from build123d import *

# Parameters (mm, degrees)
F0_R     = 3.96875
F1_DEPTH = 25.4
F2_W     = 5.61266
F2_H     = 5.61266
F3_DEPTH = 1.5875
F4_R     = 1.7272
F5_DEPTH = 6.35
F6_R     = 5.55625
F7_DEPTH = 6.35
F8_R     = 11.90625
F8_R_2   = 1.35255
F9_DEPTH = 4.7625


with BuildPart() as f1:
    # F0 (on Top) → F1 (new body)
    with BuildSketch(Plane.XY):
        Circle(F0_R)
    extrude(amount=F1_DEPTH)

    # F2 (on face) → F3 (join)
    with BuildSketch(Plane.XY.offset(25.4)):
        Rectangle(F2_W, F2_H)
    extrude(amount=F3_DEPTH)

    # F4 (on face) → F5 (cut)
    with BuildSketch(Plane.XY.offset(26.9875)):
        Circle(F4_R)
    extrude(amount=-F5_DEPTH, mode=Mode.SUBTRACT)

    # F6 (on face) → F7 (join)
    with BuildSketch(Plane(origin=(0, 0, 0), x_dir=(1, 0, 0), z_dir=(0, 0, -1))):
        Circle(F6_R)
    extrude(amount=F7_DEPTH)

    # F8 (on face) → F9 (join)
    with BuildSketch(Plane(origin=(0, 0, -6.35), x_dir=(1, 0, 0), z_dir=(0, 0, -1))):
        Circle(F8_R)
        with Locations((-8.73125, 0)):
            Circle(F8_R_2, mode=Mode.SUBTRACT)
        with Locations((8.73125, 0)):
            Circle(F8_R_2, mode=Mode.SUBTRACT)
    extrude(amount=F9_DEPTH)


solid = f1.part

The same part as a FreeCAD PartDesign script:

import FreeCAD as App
import Part
import Sketcher
from FreeCAD import Vector
Q = App.Units.Quantity

doc = App.newDocument("Part")
body = doc.addObject("PartDesign::Body", "Body")

# Sketch on XY plane
sketch1 = body.newObject("Sketcher::SketchObject", "Sketch")
sketch1.AttachmentSupport = (doc.getObject("XY_Plane"), [""])
sketch1.MapMode = "FlatFace"
sketch1.addGeometry(Part.Circle(Vector(0, 0, 0), Vector(0, 0, 1), 3.96875), False)
sketch1.addConstraint([
    Sketcher.Constraint("Coincident", 0, 3, -1, 1),
    Sketcher.Constraint("Diameter", 0, Q("0.3125 in")),
])
pad1 = body.newObject("PartDesign::Pad", "Pad")
pad1.Profile = sketch1
pad1.Length = Q("1 in")

# Sketch on XY plane
sketch2 = body.newObject("Sketcher::SketchObject", "Sketch001")
sketch2.AttachmentSupport = (doc.getObject("XY_Plane"), [""])
sketch2.MapMode = "FlatFace"
sketch2.AttachmentOffset = App.Placement(Vector(0, 0, 1 * 25.4), App.Rotation())
sketch2.addGeometry([
    Part.LineSegment(Vector(-2.80633, 2.80633, 0), Vector(-2.80633, -2.80633, 0)),
    Part.LineSegment(Vector(-2.80633, -2.80633, 0), Vector(2.80633, -2.80633, 0)),
    Part.LineSegment(Vector(2.80633, -2.80633, 0), Vector(2.80633, 2.80633, 0)),
    Part.LineSegment(Vector(2.80633, 2.80633, 0), Vector(-2.80633, 2.80633, 0)),
], False)
sketch2.addConstraint([
    Sketcher.Constraint("Coincident", 0, 2, 1, 1),
    Sketcher.Constraint("Coincident", 1, 2, 2, 1),
    Sketcher.Constraint("Coincident", 2, 2, 3, 1),
    Sketcher.Constraint("Coincident", 3, 2, 0, 1),
    Sketcher.Constraint("Vertical", 0),
    Sketcher.Constraint("Horizontal", 1),
    Sketcher.Constraint("Vertical", 2),
    Sketcher.Constraint("Horizontal", 3),
    Sketcher.Constraint("Symmetric", 0, 2, 2, 2, -1, 1),
    Sketcher.Constraint("Equal", 3, 0),
    Sketcher.Constraint("DistanceX", 1, 1, 1, 2, 5.61266),
])
pad2 = body.newObject("PartDesign::Pad", "Pad001")
pad2.Profile = sketch2
pad2.Length = Q("0.0625 in")

# Sketch on XY plane
sketch3 = body.newObject("Sketcher::SketchObject", "Sketch002")
sketch3.AttachmentSupport = (doc.getObject("XY_Plane"), [""])
sketch3.MapMode = "FlatFace"
sketch3.AttachmentOffset = App.Placement(Vector(0, 0, 1.0625 * 25.4), App.Rotation())
sketch3.addGeometry(Part.Circle(Vector(0, 0, 0), Vector(0, 0, 1), 1.7272), False)
sketch3.addConstraint([
    Sketcher.Constraint("Coincident", 0, 3, -1, 1),
    Sketcher.Constraint("Diameter", 0, Q("0.136 in")),
])
pocket1 = body.newObject("PartDesign::Pocket", "Pocket")
pocket1.Profile = sketch3
pocket1.Length = Q("0.25 in")

# Sketch on XY plane
sketch4 = body.newObject("Sketcher::SketchObject", "Sketch003")
sketch4.AttachmentSupport = (doc.getObject("XY_Plane"), [""])
sketch4.MapMode = "FlatFace"
sketch4.addGeometry(Part.Circle(Vector(0, 0, 0), Vector(0, 0, 1), 5.55625), False)
sketch4.addConstraint([
    Sketcher.Constraint("Coincident", 0, 3, -1, 1),
    Sketcher.Constraint("Diameter", 0, Q("0.4375 in")),
])
pad3 = body.newObject("PartDesign::Pad", "Pad002")
pad3.Profile = sketch4
pad3.Length = Q("0.25 in")
pad3.Reversed = True

# Sketch on XY plane
sketch5 = body.newObject("Sketcher::SketchObject", "Sketch004")
sketch5.AttachmentSupport = (doc.getObject("XY_Plane"), [""])
sketch5.MapMode = "FlatFace"
sketch5.AttachmentOffset = App.Placement(Vector(0, 0, -0.25 * 25.4), App.Rotation())
sketch5.addGeometry([
    Part.Circle(Vector(0, 0, 0), Vector(0, 0, 1), 11.90625),
    Part.Circle(Vector(-8.73125, 0, 0), Vector(0, 0, 1), 1.35255),
    Part.Circle(Vector(8.73125, 0, 0), Vector(0, 0, 1), 1.35255),
], False)
sketch5.addConstraint([
    Sketcher.Constraint("Coincident", 0, 3, -1, 1),
    Sketcher.Constraint("Equal", 1, 2),
    Sketcher.Constraint("Symmetric", 1, 3, 2, 3, -1, 1),
    Sketcher.Constraint("PointOnObject", 1, 3, -1),
    Sketcher.Constraint("Diameter", 0, Q("0.9375 in")),
    Sketcher.Constraint("Diameter", 1, Q("0.1065 in")),
    Sketcher.Constraint("DistanceX", 1, 3, -1, 1, Q("0.34375 in")),
])
pad4 = body.newObject("PartDesign::Pad", "Pad003")
pad4.Profile = sketch5
pad4.Length = Q("0.1875 in")
pad4.Reversed = True

doc.recompute()
